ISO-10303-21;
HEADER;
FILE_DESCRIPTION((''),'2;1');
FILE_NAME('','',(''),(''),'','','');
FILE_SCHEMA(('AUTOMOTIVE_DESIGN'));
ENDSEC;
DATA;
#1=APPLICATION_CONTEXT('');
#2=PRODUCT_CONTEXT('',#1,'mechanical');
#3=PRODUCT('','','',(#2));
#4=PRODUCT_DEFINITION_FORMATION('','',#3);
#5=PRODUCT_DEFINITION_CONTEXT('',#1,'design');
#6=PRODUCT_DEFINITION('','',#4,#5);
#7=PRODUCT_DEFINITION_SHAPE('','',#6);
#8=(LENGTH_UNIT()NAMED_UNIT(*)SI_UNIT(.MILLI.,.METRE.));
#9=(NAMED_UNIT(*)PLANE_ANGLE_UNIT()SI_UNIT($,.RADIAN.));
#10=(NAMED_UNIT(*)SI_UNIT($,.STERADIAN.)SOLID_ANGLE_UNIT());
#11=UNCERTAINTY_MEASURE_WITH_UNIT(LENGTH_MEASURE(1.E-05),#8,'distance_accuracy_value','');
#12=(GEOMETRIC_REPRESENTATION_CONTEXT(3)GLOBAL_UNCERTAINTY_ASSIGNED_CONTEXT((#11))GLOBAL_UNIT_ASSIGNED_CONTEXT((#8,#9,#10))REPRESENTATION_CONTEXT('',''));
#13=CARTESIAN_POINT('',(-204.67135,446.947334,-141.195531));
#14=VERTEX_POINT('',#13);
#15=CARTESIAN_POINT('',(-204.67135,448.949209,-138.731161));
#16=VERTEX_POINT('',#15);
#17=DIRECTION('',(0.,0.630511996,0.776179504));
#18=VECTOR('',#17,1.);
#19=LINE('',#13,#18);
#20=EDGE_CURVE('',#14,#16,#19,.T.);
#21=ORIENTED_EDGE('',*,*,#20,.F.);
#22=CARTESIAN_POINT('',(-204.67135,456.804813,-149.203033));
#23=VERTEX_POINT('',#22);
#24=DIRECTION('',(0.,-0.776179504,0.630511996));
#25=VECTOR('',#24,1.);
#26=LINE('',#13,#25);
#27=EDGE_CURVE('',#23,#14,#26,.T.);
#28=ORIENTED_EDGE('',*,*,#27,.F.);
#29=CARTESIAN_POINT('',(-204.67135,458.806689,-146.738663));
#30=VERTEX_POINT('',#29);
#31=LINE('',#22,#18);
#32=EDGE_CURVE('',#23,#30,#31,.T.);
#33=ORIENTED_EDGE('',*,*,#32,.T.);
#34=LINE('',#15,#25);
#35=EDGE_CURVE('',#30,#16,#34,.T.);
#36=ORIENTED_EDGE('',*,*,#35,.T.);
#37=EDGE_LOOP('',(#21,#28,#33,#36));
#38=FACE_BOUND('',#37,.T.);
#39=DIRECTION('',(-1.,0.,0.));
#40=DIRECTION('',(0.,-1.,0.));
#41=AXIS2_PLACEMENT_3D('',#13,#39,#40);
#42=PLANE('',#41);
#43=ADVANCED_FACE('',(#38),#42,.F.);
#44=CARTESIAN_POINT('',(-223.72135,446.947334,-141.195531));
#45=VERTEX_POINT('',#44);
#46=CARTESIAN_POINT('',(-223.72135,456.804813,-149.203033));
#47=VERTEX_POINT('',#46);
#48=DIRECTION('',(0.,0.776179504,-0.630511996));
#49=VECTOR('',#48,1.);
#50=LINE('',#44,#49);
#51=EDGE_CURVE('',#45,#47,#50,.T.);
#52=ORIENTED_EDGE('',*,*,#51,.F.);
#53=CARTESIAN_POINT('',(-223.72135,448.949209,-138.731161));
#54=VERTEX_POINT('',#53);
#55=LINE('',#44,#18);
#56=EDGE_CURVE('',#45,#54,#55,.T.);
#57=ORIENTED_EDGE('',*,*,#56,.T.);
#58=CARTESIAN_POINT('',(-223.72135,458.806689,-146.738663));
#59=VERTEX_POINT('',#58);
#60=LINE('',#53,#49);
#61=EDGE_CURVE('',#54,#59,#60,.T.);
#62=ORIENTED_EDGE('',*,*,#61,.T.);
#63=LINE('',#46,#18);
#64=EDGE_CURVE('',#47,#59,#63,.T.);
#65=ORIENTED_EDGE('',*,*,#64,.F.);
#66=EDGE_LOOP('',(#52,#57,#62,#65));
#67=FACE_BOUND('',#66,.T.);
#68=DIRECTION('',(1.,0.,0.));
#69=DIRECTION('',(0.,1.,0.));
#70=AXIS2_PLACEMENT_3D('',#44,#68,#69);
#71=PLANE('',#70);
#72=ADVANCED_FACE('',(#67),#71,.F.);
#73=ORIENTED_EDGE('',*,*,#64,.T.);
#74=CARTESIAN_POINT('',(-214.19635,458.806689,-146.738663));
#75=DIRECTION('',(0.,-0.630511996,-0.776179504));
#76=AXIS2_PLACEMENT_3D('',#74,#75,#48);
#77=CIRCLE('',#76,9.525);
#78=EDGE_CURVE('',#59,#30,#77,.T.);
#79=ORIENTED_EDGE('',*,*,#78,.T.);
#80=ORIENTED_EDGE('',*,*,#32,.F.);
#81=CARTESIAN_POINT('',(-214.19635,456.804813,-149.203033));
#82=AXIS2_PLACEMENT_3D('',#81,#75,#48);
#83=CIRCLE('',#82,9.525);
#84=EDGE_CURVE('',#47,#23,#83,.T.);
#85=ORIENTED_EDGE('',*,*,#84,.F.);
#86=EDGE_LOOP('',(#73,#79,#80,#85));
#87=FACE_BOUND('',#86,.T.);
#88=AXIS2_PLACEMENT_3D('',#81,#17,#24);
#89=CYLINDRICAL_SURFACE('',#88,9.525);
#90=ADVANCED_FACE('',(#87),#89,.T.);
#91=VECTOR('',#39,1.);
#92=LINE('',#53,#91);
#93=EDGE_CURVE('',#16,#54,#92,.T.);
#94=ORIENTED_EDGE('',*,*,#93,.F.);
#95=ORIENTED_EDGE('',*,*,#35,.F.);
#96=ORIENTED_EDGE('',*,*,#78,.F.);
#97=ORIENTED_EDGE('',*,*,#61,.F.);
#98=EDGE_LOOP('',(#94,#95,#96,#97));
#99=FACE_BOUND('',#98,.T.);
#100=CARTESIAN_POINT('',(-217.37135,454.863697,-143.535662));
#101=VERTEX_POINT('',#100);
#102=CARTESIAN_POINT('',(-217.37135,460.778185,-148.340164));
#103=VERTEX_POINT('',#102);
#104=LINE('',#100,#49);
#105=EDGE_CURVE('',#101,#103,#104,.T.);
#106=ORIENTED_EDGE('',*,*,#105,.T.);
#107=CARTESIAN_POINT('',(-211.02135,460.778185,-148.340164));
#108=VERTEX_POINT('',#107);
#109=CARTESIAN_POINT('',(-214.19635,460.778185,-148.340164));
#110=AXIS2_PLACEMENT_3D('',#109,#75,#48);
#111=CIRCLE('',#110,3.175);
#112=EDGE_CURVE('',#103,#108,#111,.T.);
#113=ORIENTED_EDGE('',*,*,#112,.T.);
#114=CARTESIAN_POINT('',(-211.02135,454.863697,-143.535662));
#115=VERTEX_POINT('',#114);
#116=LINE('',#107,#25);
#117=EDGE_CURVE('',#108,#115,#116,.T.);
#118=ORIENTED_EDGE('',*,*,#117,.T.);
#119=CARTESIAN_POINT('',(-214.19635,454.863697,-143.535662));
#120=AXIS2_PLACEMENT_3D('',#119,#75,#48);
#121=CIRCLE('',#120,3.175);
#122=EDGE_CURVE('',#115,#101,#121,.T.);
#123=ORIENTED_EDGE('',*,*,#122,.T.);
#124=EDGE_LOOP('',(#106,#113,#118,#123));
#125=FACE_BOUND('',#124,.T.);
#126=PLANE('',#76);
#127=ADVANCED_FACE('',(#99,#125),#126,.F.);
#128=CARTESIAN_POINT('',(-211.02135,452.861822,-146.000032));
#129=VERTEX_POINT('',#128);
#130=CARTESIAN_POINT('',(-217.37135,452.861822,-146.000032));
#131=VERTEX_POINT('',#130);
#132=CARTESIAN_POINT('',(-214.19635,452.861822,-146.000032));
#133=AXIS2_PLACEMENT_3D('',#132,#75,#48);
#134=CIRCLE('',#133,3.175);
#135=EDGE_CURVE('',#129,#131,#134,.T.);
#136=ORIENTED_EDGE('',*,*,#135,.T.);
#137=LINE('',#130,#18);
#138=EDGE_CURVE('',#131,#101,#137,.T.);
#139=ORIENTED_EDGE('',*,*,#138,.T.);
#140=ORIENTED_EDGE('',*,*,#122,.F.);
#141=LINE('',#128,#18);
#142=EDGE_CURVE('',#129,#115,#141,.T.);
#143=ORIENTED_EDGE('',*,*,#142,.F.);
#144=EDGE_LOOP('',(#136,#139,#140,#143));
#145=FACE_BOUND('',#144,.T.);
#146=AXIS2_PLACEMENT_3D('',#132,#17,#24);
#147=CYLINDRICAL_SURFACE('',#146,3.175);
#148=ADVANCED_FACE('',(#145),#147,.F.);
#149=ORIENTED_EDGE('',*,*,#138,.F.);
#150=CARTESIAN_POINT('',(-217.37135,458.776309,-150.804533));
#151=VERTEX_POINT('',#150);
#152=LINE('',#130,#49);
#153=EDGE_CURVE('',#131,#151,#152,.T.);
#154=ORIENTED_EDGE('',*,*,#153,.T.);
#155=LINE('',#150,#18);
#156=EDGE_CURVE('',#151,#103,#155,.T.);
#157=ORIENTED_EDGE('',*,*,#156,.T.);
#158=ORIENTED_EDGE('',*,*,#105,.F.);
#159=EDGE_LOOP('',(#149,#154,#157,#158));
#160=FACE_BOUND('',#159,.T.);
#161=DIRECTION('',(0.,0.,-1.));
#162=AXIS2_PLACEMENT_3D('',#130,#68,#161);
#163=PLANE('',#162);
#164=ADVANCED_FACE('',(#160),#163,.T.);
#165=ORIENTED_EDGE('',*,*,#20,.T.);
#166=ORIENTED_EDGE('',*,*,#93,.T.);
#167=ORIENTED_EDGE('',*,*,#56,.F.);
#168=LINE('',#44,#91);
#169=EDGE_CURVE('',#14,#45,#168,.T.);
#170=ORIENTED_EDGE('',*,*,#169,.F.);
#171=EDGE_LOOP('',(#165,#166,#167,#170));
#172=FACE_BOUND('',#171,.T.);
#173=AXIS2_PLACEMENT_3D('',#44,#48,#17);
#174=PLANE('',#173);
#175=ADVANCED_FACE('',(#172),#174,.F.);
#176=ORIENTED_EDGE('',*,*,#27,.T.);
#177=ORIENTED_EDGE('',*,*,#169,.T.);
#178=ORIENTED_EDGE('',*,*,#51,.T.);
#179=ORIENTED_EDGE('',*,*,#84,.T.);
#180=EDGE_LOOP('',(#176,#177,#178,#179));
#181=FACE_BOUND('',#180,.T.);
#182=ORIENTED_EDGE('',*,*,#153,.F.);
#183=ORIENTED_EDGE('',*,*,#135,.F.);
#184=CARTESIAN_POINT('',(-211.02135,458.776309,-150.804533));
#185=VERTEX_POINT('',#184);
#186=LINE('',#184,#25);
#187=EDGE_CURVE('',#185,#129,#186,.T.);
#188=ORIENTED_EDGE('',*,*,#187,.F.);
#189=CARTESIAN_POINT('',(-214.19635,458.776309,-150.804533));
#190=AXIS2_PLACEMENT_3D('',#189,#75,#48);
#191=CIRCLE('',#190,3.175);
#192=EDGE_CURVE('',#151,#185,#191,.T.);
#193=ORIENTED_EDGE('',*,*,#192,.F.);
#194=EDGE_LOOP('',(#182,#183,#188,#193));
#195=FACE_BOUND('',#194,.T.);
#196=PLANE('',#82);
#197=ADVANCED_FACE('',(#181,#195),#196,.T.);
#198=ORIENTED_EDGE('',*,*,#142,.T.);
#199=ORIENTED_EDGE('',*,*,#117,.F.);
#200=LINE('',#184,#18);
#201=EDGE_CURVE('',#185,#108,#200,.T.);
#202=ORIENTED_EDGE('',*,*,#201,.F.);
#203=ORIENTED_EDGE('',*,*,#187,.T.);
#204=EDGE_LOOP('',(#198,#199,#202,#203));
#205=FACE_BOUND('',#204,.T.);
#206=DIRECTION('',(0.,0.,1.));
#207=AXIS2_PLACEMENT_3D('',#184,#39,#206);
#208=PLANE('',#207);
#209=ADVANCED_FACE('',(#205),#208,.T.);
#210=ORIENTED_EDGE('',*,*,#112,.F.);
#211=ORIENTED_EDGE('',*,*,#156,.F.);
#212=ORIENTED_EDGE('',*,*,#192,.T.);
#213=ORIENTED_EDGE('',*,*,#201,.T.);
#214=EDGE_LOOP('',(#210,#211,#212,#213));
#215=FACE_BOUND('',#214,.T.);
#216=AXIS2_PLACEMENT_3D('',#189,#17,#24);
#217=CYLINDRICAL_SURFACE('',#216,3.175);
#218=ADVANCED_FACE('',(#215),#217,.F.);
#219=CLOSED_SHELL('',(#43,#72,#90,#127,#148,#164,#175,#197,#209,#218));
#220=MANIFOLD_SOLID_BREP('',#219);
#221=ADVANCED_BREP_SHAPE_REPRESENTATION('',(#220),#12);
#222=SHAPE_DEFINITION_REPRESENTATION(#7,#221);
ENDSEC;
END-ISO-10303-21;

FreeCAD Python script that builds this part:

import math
import FreeCAD as App
import Part
import Sketcher
from FreeCAD import Vector
Q = App.Units.Quantity

doc = App.newDocument("Part")
body = doc.addObject("PartDesign::Body", "Body")

# Sketch on an angled plane
sketch1 = doc.addObject("Sketcher::SketchObject", "Sketch")
body.addObject(sketch1)
sketch1.Placement = App.Placement(Vector(0, 861.782639, -474.08713), App.Rotation(Vector(1, 0, 0), Vector(0, -0.776179504, 0.630511996), Vector(0, -0.630511996, -0.776179504), "ZXY"))
sketch1.addGeometry([
    Part.LineSegment(Vector(-204.7, 531.9, 0), Vector(-223.7, 531.9, 0)),  # 0
    Part.LineSegment(Vector(-223.7, 531.9, 0), Vector(-223.7, 519.2, 0)),  # 1
    Part.ArcOfCircle(Part.Circle(Vector(-214.2, 519.2, 0), Vector(0, 0, 1), 9.5), math.radians(180), math.radians(360)),  # 2
    Part.LineSegment(Vector(-204.7, 519.2, 0), Vector(-204.7, 531.9, 0)),  # 3
    Part.ArcOfCircle(Part.Circle(Vector(-214.2, 516.6, 0), Vector(0, 0, 1), 3.2), math.radians(180), math.radians(360)),  # 4
    Part.LineSegment(Vector(-217.4, 516.6, 0), Vector(-217.4, 524.3, 0)),  # 5
    Part.ArcOfCircle(Part.Circle(Vector(-214.2, 524.3, 0), Vector(0, 0, 1), 3.2), math.radians(0), math.radians(180)),  # 6
    Part.LineSegment(Vector(-211, 524.3, 0), Vector(-211, 516.6, 0)),  # 7
], False)
sketch1.addConstraint([
    Sketcher.Constraint("Coincident", 0, 2, 1, 1),
    Sketcher.Constraint("Tangent", 1, 2, 2, 1),
    Sketcher.Constraint("Tangent", 2, 2, 3, 1),
    Sketcher.Constraint("Coincident", 3, 2, 0, 1),
    Sketcher.Constraint("Tangent", 4, 1, 5, 1),
    Sketcher.Constraint("Tangent", 5, 2, 6, 2),
    Sketcher.Constraint("Tangent", 6, 1, 7, 1),
    Sketcher.Constraint("Tangent", 7, 2, 4, 2),
    Sketcher.Constraint("Horizontal", 0),
    Sketcher.Constraint("Vertical", 1),
    Sketcher.Constraint("Vertical", 3),
    Sketcher.Constraint("Vertical", 5),
    Sketcher.Constraint("Vertical", 7),
    Sketcher.Constraint("Vertical", 2, 3, 4, 3),
    Sketcher.Constraint("DistanceY", 1, 2, 1, 1, Q("0.5 in")),
    Sketcher.Constraint("DistanceY", 5, 1, 5, 2, Q("0.3 in")),
    Sketcher.Constraint("Radius", 2, Q("0.375 in")),
    Sketcher.Constraint("Radius", 4, Q("0.125 in")),
    Sketcher.Constraint("DistanceY", 4, 3, 2, 3, Q("0.1 in")),
    Sketcher.Constraint("DistanceX", 2, 3, -1, 1, Q("214.19635 mm")),
    Sketcher.Constraint("DistanceY", -1, 1, 2, 3, Q("519.178809 mm")),
])
pad1 = doc.addObject("PartDesign::Pad", "Pad")
body.addObject(pad1)
pad1.Profile = sketch1
pad1.Length = Q("0.125 in")

doc.recompute()
